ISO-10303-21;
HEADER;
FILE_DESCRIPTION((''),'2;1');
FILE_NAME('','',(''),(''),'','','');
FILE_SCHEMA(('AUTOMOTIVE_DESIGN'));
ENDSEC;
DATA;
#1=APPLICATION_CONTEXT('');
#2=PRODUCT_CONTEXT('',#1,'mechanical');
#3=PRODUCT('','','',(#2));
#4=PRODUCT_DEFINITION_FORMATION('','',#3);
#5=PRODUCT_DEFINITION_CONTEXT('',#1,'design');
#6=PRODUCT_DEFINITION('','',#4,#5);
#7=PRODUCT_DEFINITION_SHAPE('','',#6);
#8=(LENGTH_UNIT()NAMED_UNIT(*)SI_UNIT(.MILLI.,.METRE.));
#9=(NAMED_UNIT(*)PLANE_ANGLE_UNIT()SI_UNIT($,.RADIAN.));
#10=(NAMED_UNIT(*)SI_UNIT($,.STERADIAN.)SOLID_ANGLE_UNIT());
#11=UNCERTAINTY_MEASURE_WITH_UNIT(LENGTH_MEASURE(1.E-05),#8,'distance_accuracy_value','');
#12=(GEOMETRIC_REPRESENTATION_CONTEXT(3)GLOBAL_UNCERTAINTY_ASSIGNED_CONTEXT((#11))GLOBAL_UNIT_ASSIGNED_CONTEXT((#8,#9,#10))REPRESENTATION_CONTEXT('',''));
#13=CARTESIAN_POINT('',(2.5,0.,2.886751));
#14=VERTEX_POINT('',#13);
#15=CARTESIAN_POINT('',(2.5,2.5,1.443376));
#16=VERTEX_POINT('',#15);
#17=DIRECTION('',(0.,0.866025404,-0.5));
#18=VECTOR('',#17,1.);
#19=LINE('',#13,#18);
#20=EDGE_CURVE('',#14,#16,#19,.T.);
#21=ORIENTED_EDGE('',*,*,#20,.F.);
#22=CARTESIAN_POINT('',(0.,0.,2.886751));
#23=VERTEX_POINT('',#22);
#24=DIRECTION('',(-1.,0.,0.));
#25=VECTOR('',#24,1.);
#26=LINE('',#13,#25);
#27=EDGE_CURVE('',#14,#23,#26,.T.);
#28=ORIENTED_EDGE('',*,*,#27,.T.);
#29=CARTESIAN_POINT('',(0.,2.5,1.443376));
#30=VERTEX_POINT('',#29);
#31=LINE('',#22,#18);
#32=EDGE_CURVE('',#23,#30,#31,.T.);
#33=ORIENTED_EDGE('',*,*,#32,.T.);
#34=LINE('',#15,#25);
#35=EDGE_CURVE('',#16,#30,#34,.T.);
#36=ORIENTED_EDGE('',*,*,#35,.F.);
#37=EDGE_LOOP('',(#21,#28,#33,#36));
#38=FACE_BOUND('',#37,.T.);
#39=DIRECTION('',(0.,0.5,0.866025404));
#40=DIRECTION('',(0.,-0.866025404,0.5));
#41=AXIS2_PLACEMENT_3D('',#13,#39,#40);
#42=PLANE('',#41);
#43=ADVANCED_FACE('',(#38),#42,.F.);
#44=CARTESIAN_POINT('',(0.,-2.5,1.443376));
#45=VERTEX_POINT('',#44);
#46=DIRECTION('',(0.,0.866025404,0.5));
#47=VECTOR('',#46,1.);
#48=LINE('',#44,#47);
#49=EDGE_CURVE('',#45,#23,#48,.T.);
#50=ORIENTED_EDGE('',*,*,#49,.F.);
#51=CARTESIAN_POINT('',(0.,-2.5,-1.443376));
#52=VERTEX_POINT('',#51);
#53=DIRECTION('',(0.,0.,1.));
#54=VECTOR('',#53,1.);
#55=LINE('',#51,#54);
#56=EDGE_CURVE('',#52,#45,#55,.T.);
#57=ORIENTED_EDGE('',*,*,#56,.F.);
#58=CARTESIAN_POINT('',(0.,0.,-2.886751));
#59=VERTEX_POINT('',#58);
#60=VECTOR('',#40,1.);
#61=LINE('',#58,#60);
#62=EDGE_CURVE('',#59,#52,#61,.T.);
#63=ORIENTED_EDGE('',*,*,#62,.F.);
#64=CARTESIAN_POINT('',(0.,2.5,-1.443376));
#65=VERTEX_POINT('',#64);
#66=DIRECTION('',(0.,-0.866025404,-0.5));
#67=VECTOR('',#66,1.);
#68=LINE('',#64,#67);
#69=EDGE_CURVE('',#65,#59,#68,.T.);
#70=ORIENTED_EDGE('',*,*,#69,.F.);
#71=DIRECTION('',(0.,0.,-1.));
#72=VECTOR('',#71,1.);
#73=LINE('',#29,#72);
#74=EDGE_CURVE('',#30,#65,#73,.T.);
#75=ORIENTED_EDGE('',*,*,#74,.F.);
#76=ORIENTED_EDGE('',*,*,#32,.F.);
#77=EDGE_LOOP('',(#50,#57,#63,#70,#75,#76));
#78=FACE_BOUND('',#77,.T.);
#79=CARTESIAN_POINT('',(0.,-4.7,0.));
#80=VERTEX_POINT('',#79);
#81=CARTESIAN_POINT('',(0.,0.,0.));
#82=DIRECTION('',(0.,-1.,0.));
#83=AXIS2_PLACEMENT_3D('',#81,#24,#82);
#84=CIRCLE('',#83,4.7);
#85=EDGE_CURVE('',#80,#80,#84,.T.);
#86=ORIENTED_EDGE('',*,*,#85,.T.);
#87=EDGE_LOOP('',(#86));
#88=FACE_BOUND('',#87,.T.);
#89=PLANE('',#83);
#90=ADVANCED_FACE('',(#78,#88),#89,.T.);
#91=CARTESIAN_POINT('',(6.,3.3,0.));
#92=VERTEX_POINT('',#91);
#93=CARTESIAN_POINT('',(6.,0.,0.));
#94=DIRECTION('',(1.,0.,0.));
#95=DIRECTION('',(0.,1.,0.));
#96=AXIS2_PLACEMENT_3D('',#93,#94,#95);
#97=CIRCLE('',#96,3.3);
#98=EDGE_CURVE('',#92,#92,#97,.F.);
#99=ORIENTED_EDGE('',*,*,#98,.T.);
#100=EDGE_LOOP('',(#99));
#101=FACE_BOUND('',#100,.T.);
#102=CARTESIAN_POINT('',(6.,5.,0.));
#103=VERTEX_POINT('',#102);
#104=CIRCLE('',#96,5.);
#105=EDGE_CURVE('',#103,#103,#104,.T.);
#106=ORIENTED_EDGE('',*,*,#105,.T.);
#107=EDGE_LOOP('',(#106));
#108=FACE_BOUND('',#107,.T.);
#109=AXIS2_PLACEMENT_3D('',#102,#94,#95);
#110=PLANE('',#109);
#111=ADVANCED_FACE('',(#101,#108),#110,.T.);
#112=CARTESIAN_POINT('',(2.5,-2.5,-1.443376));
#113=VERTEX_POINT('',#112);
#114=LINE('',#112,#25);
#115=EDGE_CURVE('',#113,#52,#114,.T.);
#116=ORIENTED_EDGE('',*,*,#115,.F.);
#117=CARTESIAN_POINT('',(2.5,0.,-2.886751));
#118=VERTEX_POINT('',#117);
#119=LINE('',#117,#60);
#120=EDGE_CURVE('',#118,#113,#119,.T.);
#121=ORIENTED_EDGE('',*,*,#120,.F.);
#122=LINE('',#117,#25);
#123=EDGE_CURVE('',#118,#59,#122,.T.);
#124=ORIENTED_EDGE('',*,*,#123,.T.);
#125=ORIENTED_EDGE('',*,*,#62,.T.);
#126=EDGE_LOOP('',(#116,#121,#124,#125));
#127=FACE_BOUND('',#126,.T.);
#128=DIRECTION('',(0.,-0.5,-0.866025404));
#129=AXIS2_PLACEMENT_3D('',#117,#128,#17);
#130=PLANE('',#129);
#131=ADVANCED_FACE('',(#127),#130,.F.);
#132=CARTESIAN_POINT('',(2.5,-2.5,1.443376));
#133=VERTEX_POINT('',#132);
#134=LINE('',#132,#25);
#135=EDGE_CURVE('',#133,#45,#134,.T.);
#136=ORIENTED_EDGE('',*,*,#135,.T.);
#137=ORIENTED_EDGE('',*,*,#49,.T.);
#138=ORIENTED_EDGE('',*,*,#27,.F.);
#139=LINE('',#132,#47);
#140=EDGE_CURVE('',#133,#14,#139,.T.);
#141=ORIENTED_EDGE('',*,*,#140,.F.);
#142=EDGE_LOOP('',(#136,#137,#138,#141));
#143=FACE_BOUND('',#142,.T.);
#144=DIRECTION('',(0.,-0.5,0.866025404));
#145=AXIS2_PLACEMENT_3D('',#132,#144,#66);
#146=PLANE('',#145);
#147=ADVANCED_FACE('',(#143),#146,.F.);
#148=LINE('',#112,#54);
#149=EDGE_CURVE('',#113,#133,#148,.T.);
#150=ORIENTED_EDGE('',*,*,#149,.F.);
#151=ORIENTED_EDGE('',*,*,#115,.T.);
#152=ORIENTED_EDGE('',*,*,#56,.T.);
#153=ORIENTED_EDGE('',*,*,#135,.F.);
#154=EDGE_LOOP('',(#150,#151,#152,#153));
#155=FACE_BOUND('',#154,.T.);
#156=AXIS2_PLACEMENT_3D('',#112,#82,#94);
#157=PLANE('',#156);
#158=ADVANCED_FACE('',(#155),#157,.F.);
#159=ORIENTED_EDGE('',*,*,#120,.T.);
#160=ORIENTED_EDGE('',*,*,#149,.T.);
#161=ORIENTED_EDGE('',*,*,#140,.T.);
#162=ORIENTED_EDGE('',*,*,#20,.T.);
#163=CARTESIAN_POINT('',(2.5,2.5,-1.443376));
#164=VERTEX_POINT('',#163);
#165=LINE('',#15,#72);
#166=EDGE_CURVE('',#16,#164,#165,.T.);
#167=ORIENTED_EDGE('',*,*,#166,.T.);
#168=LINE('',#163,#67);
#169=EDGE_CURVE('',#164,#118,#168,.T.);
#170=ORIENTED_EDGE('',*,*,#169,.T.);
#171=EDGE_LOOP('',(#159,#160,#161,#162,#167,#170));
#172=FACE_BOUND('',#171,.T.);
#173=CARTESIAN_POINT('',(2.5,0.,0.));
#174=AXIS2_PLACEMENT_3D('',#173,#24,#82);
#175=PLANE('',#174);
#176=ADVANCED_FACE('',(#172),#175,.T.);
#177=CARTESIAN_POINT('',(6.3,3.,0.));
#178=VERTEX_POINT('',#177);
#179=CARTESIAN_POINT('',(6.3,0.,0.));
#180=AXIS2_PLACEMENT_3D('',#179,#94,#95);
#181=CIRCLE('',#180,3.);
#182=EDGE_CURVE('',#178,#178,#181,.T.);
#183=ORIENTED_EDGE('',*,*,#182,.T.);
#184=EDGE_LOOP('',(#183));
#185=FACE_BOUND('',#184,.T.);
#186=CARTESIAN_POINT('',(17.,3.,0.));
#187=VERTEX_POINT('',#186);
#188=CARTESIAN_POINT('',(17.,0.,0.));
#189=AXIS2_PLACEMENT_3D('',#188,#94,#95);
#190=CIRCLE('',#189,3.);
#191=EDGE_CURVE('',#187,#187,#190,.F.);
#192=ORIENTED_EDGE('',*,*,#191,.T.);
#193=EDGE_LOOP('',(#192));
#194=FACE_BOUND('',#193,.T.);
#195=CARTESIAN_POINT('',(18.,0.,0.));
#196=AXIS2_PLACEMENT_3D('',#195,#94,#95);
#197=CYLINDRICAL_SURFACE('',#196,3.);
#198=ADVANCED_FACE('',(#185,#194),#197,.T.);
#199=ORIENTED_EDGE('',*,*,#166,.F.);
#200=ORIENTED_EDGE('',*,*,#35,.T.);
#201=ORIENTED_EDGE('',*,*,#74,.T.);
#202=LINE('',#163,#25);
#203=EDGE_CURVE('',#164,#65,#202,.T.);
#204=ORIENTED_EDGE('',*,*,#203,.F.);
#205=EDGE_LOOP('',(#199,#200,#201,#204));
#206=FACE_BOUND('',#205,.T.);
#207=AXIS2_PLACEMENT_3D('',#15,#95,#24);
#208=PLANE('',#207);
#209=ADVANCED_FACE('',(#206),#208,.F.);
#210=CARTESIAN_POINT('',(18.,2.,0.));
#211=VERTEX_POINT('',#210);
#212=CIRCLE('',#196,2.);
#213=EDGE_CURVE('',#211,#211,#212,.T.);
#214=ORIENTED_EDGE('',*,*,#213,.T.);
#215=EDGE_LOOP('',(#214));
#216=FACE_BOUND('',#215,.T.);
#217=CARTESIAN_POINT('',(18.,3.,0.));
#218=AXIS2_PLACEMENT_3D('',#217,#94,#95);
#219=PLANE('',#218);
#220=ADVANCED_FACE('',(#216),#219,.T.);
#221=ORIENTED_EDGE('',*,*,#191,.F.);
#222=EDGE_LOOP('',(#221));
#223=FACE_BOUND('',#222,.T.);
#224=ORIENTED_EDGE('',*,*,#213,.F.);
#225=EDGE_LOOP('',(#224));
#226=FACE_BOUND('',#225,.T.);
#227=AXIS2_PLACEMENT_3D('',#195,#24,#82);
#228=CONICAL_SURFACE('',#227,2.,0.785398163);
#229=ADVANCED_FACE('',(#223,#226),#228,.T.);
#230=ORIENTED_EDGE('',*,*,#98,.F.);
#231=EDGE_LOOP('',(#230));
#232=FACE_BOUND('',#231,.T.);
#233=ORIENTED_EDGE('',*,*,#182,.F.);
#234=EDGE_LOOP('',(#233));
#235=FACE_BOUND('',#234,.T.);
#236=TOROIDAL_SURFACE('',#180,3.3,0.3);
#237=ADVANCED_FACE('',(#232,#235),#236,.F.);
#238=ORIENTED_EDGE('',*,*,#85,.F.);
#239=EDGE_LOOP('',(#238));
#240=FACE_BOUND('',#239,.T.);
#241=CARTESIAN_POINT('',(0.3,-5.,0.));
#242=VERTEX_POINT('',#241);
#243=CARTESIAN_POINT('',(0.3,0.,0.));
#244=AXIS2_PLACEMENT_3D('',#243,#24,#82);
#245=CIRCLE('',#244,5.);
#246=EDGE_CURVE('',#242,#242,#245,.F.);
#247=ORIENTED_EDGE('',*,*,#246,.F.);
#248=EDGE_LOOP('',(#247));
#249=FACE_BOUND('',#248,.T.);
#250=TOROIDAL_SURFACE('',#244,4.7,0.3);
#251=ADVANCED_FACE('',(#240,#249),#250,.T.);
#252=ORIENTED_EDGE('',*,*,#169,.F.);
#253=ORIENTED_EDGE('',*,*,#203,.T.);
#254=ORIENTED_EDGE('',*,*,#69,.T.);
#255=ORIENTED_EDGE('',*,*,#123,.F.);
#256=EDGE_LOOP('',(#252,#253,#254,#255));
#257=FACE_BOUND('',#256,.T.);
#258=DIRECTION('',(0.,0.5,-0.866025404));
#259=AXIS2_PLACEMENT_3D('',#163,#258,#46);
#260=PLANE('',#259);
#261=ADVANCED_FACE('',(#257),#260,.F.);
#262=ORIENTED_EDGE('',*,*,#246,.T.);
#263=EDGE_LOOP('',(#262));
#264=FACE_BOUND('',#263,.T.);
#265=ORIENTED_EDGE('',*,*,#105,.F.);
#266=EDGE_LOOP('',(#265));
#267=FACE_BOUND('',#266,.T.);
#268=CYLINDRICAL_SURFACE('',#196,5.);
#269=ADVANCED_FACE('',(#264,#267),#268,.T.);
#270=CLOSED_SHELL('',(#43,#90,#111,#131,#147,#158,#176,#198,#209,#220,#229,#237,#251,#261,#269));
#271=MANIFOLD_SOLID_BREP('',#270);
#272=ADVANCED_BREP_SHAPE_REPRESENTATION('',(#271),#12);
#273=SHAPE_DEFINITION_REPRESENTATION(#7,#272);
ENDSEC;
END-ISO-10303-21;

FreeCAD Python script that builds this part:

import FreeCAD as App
import Part
import Sketcher
Q = App.Units.Quantity


def edges_at(feature, points):
    """Names of the edges that pass closest to the given points."""
    edges = feature.Shape.Edges
    near = lambda p: min(range(len(edges)), key=lambda i: edges[i].distToShape(Part.Vertex(*p))[0])
    return sorted({f"Edge{near(p) + 1}" for p in points})


def add_polygon(sketch, points):
    """Adds a closed chain of lines whose ends are joined by coincident constraints."""
    first, n = sketch.GeometryCount, len(points)
    for a, b in zip(points, points[1:] + points[:1]):
        sketch.addGeometry(Part.LineSegment(App.Vector(*a, 0), App.Vector(*b, 0)), False)
    for i in range(n):
        sketch.addConstraint(Sketcher.Constraint("Coincident", first + i, 2, first + (i + 1) % n, 1))

doc = App.newDocument("Part")
body = doc.addObject("PartDesign::Body", "Body")

sketch1 = doc.addObject("Sketcher::SketchObject", "Sketch")
body.addObject(sketch1)
sketch1.AttachmentSupport = (doc.XY_Plane, [""])
sketch1.MapMode = "FlatFace"
add_polygon(sketch1, [(0, 5), (0, 0), (18, 0), (18, 3), (6, 3), (6, 5)])
sketch1.addConstraint(Sketcher.Constraint("Vertical", 0))
sketch1.addConstraint(Sketcher.Constraint("Horizontal", 1))
sketch1.addConstraint(Sketcher.Constraint("Vertical", 2))
sketch1.addConstraint(Sketcher.Constraint("Horizontal", 3))
sketch1.addConstraint(Sketcher.Constraint("Vertical", 4))
sketch1.addConstraint(Sketcher.Constraint("Horizontal", 5))
sketch1.addConstraint(Sketcher.Constraint("Coincident", 0, 2, -1, 1))
sketch1.addConstraint(Sketcher.Constraint("DistanceX", 1, 1, 1, 2, Q("18 mm")))
sketch1.addConstraint(Sketcher.Constraint("DistanceX", 3, 2, 3, 1, Q("12 mm")))
sketch1.addConstraint(Sketcher.Constraint("DistanceY", 0, 2, 0, 1, Q("5 mm")))
sketch1.addConstraint(Sketcher.Constraint("DistanceY", 2, 1, 2, 2, Q("3 mm")))
revolution = doc.addObject("PartDesign::Revolution", "Revolution")
body.addObject(revolution)
revolution.Profile = sketch1
revolution.ReferenceAxis = (sketch1, ["H_Axis"])
revolution.Angle = 360

sketch2 = doc.addObject("Sketcher::SketchObject", "Sketch001")
body.addObject(sketch2)
sketch2.AttachmentSupport = (doc.YZ_Plane, [""])
sketch2.MapMode = "FlatFace"
add_polygon(sketch2, [(2.5, -1.443376), (0, -2.886751), (-2.5, -1.443376), (-2.5, 1.443376), (0, 2.886751), (2.5, 1.443376)])
sketch2.addConstraint(Sketcher.Constraint("Vertical", 2))
sketch2.addConstraint(Sketcher.Constraint("Vertical", 5))
sketch2.addConstraint(Sketcher.Constraint("Symmetric", 0, 2, 3, 2, -1, 1))
sketch2.addConstraint(Sketcher.Constraint("Symmetric", 1, 2, 4, 2, -1, 1))
sketch2.addConstraint(Sketcher.Constraint("PointOnObject", 0, 2, -2))
sketch2.addConstraint(Sketcher.Constraint("Parallel", 0, 3))
sketch2.addConstraint(Sketcher.Constraint("Horizontal", 2, 2, 4, 2))
sketch2.addConstraint(Sketcher.Constraint("Angle", 0, Q("-150 deg")))
sketch2.addConstraint(Sketcher.Constraint("DistanceX", 2, 2, 4, 2, Q("5 mm")))
sketch2.addConstraint(Sketcher.Constraint("DistanceY", 2, 1, 2, 2, Q("2.886751 mm")))
pocket1 = doc.addObject("PartDesign::Pocket", "Pocket")
body.addObject(pocket1)
pocket1.Profile = sketch2
pocket1.Length = 2.5
pocket1.Reversed = True
doc.recompute()

fillet = doc.addObject("PartDesign::Fillet", "Fillet")
body.addObject(fillet)
fillet.Base = (pocket1, edges_at(pocket1, [(6, -3, 0), (0, -5, 0)]))
fillet.Radius = 0.3
doc.recompute()

chamfer = doc.addObject("PartDesign::Chamfer", "Chamfer")
body.addObject(chamfer)
chamfer.Base = (fillet, edges_at(fillet, [(18, -3, 0)]))
chamfer.Size = 1

doc.recompute()
